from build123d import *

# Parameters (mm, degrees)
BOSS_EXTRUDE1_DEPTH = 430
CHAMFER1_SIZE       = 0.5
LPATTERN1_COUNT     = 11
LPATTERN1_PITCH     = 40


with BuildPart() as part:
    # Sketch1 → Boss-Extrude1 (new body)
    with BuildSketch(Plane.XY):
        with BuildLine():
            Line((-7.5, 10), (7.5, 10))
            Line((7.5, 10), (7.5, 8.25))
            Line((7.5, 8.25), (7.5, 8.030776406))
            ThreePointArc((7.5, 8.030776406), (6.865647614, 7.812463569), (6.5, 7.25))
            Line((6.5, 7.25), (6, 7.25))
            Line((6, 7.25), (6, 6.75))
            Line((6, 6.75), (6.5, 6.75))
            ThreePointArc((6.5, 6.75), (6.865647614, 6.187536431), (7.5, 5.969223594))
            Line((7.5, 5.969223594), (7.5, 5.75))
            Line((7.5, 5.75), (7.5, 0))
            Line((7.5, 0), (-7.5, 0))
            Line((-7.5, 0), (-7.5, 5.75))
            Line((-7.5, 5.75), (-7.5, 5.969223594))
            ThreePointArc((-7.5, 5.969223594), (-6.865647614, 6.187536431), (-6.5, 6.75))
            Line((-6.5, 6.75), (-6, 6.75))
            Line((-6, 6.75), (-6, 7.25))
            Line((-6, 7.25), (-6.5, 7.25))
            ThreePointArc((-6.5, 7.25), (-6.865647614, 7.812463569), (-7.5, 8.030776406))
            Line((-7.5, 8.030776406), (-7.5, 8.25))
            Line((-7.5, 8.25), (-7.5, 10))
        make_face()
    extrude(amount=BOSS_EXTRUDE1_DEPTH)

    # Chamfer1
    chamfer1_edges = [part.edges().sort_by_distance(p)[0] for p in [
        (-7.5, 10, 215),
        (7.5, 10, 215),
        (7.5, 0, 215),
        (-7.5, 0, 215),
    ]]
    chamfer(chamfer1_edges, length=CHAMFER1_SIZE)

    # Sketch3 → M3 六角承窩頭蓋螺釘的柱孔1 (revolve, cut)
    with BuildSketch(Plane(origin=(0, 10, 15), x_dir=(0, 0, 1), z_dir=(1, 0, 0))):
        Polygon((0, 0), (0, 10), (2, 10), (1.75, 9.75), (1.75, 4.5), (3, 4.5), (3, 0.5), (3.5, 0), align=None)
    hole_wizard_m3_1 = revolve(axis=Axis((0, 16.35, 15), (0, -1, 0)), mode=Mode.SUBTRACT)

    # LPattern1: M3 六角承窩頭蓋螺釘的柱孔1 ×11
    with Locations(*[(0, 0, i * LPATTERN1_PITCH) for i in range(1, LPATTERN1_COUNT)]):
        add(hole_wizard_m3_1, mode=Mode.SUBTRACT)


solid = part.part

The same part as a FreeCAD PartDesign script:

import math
import FreeCAD as App
import Part
import Sketcher
from FreeCAD import Vector
Q = App.Units.Quantity


def edges_at(feature, points):
    """Names of the edges that pass closest to the given points."""
    edges = feature.Shape.Edges
    near = lambda p: min(range(len(edges)), key=lambda i: edges[i].distToShape(Part.Vertex(*p))[0])
    return sorted({f"Edge{near(p) + 1}" for p in points})

doc = App.newDocument("Part")
body = doc.addObject("PartDesign::Body", "Body")

sketch1 = body.newObject("Sketcher::SketchObject", "Sketch")
sketch1.AttachmentSupport = (doc.getObject("XY_Plane"), [""])
sketch1.MapMode = "FlatFace"
sketch1.addGeometry([
    Part.LineSegment(Vector(7.5, 10, 0), Vector(-7.5, 10, 0)),
    Part.LineSegment(Vector(-7.5, 10, 0), Vector(-7.5, 8, 0)),
    Part.ArcOfCircle(Part.Circle(Vector(-7.5, 7, 0), Vector(0, 0, 1), 1), math.radians(14), math.radians(90)),
    Part.LineSegment(Vector(-6.5, 7.2, 0), Vector(-6, 7.2, 0)),
    Part.LineSegment(Vector(-6, 7.2, 0), Vector(-6, 6.8, 0)),
    Part.LineSegment(Vector(-6, 6.8, 0), Vector(-6.5, 6.8, 0)),
    Part.ArcOfCircle(Part.Circle(Vector(-7.5, 7, 0), Vector(0, 0, 1), 1), math.radians(-90), math.radians(-14)),
    Part.LineSegment(Vector(-7.5, 6, 0), Vector(-7.5, 0, 0)),
    Part.LineSegment(Vector(-7.5, 0, 0), Vector(7.5, 0, 0)),
    Part.LineSegment(Vector(7.5, 0, 0), Vector(7.5, 6, 0)),
    Part.ArcOfCircle(Part.Circle(Vector(7.5, 7, 0), Vector(0, 0, 1), 1), math.radians(-166), math.radians(-90)),
    Part.LineSegment(Vector(6.5, 6.8, 0), Vector(6, 6.8, 0)),
    Part.LineSegment(Vector(6, 6.8, 0), Vector(6, 7.2, 0)),
    Part.LineSegment(Vector(6, 7.2, 0), Vector(6.5, 7.2, 0)),
    Part.ArcOfCircle(Part.Circle(Vector(7.5, 7, 0), Vector(0, 0, 1), 1), math.radians(90), math.radians(166)),
    Part.LineSegment(Vector(7.5, 8, 0), Vector(7.5, 10, 0)),
], False)
sketch1.addConstraint([
    Sketcher.Constraint("Coincident", 0, 2, 1, 1),
    Sketcher.Constraint("Coincident", 1, 2, 2, 2),
    Sketcher.Constraint("Coincident", 2, 1, 3, 1),
    Sketcher.Constraint("Coincident", 3, 2, 4, 1),
    Sketcher.Constraint("Coincident", 4, 2, 5, 1),
    Sketcher.Constraint("Coincident", 5, 2, 6, 2),
    Sketcher.Constraint("Coincident", 6, 1, 7, 1),
    Sketcher.Constraint("Coincident", 7, 2, 8, 1),
    Sketcher.Constraint("Coincident", 8, 2, 9, 1),
    Sketcher.Constraint("Coincident", 9, 2, 10, 2),
    Sketcher.Constraint("Coincident", 10, 1, 11, 1),
    Sketcher.Constraint("Coincident", 11, 2, 12, 1),
    Sketcher.Constraint("Coincident", 12, 2, 13, 1),
    Sketcher.Constraint("Coincident", 13, 2, 14, 2),
    Sketcher.Constraint("Coincident", 14, 1, 15, 1),
    Sketcher.Constraint("Coincident", 15, 2, 0, 1),
    Sketcher.Constraint("Horizontal", 0),
    Sketcher.Constraint("Vertical", 1),
    Sketcher.Constraint("Horizontal", 3),
    Sketcher.Constraint("Vertical", 4),
    Sketcher.Constraint("Horizontal", 5),
    Sketcher.Constraint("Vertical", 7),
    Sketcher.Constraint("Horizontal", 8),
    Sketcher.Constraint("Vertical", 9),
    Sketcher.Constraint("Horizontal", 11),
    Sketcher.Constraint("Vertical", 12),
    Sketcher.Constraint("Horizontal", 13),
    Sketcher.Constraint("Vertical", 15),
    Sketcher.Constraint("Coincident", 6, 3, 2, 3),
    Sketcher.Constraint("Coincident", 14, 3, 10, 3),
    Sketcher.Constraint("Equal", 2, 6),
    Sketcher.Constraint("Equal", 6, 10),
    Sketcher.Constraint("Equal", 10, 14),
    Sketcher.Constraint("Symmetric", 7, 2, 8, 2, -1, 1),
    Sketcher.Constraint("Symmetric", 2, 3, 10, 3, -2),
    Sketcher.Constraint("Symmetric", 4, 2, 11, 2, -2),
    Sketcher.Constraint("Horizontal", 3, 2, 12, 2),
    Sketcher.Constraint("Vertical", 6, 3, 0, 2),
    Sketcher.Constraint("Vertical", 2, 1, 5, 2),
    Sketcher.Constraint("Vertical", 1, 2, 6, 1),
    Sketcher.Constraint("Vertical", 9, 2, 14, 1),
    Sketcher.Constraint("Equal", 13, 4),
    Sketcher.Constraint("DistanceX", 0, 2, 0, 1, 15.0),
    Sketcher.Constraint("DistanceX", 3, 1, 3, 2, 0.5),
    Sketcher.Constraint("DistanceY", -1, 1, 2, 3, 7.0),
    Sketcher.Constraint("DistanceY", -1, 1, 0, 2, 10.0),
    Sketcher.Constraint("DistanceX", 3, 2, -1, 1, 6.0),
])
pad1 = body.newObject("PartDesign::Pad", "Pad")
pad1.Profile = sketch1
pad1.Length = 430
doc.recompute()

chamfer = body.newObject("PartDesign::Chamfer", "Chamfer")
chamfer.Base = (pad1, edges_at(pad1, [
    (-7.5, 10, 215),
    (7.5, 10, 215),
    (7.5, 0, 215),
    (-7.5, 0, 215),
]))
chamfer.Size = 0.5

sketch2 = body.newObject("Sketcher::SketchObject", "Sketch001")
sketch2.AttachmentSupport = (doc.getObject("YZ_Plane"), [""])
sketch2.MapMode = "FlatFace"
sketch2.addGeometry([
    Part.LineSegment(Vector(0, 15, 0), Vector(10, 15, 0)),
    Part.LineSegment(Vector(10, 15, 0), Vector(10, 18.5, 0)),
    Part.LineSegment(Vector(10, 18.5, 0), Vector(9.5, 18, 0)),
    Part.LineSegment(Vector(9.5, 18, 0), Vector(5.5, 18, 0)),
    Part.LineSegment(Vector(5.5, 18, 0), Vector(5.5, 16.75, 0)),
    Part.LineSegment(Vector(5.5, 16.75, 0), Vector(0.25, 16.75, 0)),
    Part.LineSegment(Vector(0.25, 16.75, 0), Vector(0, 17, 0)),
    Part.LineSegment(Vector(0, 17, 0), Vector(0, 15, 0)),
], False)
sketch2.addGeometry(Part.LineSegment(Vector(10, 15, 0), Vector(0, 15, 0)), True)
sketch2.addConstraint([
    Sketcher.Constraint("Coincident", 0, 2, 1, 1),
    Sketcher.Constraint("Coincident", 1, 2, 2, 1),
    Sketcher.Constraint("Coincident", 2, 2, 3, 1),
    Sketcher.Constraint("Coincident", 3, 2, 4, 1),
    Sketcher.Constraint("Coincident", 4, 2, 5, 1),
    Sketcher.Constraint("Coincident", 5, 2, 6, 1),
    Sketcher.Constraint("Coincident", 6, 2, 7, 1),
    Sketcher.Constraint("Coincident", 7, 2, 0, 1),
    Sketcher.Constraint("Horizontal", 0),
    Sketcher.Constraint("Vertical", 1),
    Sketcher.Constraint("Horizontal", 3),
    Sketcher.Constraint("Vertical", 4),
    Sketcher.Constraint("Horizontal", 5),
    Sketcher.Constraint("Vertical", 7),
    Sketcher.Constraint("Horizontal", 8),
    Sketcher.Constraint("Coincident", 8, 1, 0, 2),
    Sketcher.Constraint("PointOnObject", 6, 2, -2),
    Sketcher.Constraint("PointOnObject", 8, 2, -2),
    Sketcher.Constraint("Perpendicular", 2, 6),
    Sketcher.Constraint("DistanceX", 0, 1, 0, 2, 10.0),
    Sketcher.Constraint("DistanceX", 3, 2, 3, 1, 4.0),
    Sketcher.Constraint("DistanceY", 7, 2, 7, 1, 2.0),
    Sketcher.Constraint("Angle", 2, Q("-135 deg")),
    Sketcher.Constraint("DistanceY", 1, 1, 1, 2, 3.5),
    Sketcher.Constraint("DistanceY", -1, 1, 0, 2, 15.0),
    Sketcher.Constraint("DistanceY", -1, 1, 2, 2, 18.0),
    Sketcher.Constraint("DistanceX", 5, 2, 5, 1, 5.25),
])
groove = body.newObject("PartDesign::Groove", "Groove")
groove.Profile = sketch2
groove.ReferenceAxis = (sketch2, ["Axis0"])
groove.Angle = 360
doc.recompute()

linearpattern = body.newObject("PartDesign::LinearPattern", "LinearPattern")
linearpattern.Originals = [groove]
linearpattern.Direction = (doc.getObject("Z_Axis"), [""])
linearpattern.Mode = "offset"
linearpattern.Offset = 40
linearpattern.Occurrences = 11
body.Tip = linearpattern

doc.recompute()
